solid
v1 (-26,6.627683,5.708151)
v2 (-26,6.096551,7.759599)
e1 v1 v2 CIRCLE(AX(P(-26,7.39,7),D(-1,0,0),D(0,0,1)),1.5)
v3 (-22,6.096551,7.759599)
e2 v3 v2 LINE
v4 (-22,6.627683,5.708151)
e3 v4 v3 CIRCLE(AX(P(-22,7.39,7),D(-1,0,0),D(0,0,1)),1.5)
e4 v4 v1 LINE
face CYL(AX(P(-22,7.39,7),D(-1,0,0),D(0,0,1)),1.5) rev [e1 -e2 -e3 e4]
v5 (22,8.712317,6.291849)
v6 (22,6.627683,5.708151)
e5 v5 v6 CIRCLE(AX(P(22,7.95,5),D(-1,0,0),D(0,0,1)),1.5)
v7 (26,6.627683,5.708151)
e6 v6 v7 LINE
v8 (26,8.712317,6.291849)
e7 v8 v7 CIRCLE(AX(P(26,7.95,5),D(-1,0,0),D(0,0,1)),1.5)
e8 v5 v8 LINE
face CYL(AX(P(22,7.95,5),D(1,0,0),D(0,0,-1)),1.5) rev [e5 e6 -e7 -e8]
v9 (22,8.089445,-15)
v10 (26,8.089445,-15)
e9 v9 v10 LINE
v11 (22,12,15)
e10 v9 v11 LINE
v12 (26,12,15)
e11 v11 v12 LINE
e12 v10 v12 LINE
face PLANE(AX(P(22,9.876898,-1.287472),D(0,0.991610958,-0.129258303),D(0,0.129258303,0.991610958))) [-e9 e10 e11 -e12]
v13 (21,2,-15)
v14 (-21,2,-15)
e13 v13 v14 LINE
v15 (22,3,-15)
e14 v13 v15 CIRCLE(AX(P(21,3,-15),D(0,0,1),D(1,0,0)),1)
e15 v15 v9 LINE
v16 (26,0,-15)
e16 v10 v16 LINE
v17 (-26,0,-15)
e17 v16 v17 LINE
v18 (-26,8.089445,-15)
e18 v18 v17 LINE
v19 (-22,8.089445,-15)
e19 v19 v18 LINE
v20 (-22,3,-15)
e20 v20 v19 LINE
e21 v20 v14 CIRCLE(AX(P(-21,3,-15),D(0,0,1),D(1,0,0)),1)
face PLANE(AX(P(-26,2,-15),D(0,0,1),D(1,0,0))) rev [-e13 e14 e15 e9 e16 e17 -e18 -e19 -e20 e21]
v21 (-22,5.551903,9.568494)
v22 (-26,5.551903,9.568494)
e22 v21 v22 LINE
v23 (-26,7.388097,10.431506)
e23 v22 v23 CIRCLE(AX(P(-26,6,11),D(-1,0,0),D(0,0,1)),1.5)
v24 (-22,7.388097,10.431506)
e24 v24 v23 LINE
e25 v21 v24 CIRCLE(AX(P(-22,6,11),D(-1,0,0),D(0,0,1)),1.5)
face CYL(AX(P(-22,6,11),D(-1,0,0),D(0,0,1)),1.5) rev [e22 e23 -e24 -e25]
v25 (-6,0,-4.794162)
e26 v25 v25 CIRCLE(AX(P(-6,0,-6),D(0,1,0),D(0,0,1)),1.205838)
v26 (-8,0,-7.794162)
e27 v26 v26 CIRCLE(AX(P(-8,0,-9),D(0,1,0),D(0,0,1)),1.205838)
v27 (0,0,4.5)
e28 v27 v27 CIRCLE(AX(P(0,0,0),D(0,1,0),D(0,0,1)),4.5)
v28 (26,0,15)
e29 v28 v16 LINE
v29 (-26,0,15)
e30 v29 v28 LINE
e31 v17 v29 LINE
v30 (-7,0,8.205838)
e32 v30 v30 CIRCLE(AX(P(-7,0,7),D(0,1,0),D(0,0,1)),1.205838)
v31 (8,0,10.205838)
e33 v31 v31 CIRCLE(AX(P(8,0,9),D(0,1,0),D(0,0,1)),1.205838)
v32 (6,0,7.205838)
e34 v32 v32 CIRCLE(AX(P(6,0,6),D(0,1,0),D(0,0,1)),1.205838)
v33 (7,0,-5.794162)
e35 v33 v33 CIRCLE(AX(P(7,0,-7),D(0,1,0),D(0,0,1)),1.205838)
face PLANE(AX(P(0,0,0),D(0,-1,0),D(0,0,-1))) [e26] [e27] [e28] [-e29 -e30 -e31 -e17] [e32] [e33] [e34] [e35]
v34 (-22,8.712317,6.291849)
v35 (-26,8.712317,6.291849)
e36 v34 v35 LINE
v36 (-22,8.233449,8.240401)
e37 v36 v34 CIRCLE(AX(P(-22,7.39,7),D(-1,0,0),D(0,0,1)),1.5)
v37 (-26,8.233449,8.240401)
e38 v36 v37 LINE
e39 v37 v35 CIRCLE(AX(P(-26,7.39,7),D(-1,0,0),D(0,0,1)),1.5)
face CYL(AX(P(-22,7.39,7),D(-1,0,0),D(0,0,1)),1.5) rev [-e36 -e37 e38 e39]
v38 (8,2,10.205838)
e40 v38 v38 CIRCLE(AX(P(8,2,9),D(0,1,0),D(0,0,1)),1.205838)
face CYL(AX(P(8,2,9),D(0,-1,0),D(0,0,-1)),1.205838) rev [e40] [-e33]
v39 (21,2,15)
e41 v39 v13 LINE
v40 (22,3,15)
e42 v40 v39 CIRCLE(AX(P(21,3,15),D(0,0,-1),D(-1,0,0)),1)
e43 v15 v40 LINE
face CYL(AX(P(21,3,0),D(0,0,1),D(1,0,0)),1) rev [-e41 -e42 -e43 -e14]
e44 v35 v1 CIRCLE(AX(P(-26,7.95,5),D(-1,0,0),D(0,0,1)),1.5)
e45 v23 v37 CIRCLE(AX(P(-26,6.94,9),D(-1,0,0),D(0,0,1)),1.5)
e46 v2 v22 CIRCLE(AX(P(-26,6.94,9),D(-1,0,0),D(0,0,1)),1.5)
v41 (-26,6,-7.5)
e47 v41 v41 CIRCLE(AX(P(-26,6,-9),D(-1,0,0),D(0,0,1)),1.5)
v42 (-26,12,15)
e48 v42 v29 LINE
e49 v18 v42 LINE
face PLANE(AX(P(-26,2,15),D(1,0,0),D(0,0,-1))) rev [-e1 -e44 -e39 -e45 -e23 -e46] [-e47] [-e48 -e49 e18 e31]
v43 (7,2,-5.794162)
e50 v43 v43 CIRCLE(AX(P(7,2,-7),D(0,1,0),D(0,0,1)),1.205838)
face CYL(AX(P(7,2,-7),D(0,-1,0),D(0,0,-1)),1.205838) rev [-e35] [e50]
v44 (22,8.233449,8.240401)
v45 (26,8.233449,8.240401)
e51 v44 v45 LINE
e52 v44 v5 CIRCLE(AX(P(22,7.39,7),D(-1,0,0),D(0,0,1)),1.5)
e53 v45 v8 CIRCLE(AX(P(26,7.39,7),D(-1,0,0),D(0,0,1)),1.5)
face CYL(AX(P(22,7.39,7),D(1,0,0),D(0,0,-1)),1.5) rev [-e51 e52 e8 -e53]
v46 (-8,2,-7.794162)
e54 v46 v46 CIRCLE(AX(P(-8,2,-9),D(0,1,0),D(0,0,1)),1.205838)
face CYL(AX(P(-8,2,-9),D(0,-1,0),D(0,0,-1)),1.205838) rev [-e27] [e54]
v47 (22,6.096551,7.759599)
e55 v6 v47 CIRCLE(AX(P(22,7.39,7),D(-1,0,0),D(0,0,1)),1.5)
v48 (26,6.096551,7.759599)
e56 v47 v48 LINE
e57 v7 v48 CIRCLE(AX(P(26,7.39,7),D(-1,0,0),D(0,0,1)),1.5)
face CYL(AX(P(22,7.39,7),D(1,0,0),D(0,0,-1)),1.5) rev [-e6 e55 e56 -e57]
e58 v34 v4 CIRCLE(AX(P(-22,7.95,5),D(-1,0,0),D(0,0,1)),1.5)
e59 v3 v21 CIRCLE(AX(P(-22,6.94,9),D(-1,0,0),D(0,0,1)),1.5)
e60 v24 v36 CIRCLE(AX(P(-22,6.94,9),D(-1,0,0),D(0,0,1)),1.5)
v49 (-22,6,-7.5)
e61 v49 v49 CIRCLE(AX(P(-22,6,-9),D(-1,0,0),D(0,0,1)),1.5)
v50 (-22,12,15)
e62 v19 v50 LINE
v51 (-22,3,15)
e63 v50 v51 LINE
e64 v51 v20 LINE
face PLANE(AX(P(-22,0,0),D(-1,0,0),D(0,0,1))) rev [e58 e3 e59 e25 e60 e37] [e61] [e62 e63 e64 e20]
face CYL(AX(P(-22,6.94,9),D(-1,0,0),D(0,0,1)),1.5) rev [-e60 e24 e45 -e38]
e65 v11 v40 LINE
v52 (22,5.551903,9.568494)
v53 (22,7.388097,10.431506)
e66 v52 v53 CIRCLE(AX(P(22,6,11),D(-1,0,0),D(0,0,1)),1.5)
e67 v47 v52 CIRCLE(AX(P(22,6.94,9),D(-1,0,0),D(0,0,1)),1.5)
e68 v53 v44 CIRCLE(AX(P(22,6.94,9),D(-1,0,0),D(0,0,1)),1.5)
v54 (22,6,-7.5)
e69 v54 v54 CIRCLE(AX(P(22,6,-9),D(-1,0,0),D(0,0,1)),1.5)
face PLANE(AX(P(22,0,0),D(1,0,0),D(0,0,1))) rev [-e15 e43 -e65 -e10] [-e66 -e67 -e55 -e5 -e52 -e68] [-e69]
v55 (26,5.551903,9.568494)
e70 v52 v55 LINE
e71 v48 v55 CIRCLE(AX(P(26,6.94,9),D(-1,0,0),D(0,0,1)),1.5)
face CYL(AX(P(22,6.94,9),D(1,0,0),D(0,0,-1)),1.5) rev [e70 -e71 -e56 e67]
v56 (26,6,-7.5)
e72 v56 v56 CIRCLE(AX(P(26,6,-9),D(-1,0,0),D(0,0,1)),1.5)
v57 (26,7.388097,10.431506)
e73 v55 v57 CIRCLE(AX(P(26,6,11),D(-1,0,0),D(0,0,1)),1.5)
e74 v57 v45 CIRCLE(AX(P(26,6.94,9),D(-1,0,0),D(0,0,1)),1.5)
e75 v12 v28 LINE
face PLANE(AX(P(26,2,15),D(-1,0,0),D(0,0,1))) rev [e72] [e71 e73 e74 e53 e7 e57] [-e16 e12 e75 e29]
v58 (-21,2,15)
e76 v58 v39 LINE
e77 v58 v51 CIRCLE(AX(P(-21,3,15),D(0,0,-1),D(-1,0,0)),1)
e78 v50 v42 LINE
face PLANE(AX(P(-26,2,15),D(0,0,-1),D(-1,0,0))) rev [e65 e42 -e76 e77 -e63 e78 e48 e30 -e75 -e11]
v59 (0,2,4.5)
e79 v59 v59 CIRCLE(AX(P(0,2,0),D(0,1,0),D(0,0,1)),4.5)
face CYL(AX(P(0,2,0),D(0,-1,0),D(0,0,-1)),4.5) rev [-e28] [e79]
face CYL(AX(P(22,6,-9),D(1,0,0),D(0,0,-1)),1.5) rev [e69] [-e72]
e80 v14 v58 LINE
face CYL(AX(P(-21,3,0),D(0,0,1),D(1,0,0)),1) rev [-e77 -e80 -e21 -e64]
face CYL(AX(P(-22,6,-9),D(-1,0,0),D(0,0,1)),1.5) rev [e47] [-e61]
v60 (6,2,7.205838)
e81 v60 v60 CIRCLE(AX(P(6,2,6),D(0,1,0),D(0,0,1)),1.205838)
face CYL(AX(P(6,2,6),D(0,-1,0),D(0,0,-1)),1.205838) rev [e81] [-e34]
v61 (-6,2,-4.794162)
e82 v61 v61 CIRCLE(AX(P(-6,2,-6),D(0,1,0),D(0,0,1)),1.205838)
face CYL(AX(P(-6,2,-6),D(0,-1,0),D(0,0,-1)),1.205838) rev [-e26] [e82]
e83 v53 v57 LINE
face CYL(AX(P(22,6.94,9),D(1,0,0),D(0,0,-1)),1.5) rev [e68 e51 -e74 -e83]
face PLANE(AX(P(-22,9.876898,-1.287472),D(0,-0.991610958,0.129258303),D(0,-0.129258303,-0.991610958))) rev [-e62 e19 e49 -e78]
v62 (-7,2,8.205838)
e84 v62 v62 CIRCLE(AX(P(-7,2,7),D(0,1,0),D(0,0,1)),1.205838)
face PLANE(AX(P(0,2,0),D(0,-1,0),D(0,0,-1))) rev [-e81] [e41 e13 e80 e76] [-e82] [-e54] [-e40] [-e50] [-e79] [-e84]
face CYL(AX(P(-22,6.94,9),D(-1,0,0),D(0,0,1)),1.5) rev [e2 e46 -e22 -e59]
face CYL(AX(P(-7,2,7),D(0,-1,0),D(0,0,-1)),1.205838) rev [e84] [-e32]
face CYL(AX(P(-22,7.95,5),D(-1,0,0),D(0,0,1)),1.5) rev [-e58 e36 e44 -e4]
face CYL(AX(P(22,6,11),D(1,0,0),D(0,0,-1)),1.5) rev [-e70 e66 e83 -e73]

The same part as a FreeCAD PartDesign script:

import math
import FreeCAD as App
import Part
import Sketcher

V = App.Vector


def edges_at(feature, points):
    """Names of the edges that pass closest to the given points."""
    edges = feature.Shape.Edges
    near = lambda p: min(range(len(edges)), key=lambda i: edges[i].distToShape(Part.Vertex(*p))[0])
    return sorted({f"Edge{near(p) + 1}" for p in points})

doc = App.newDocument("Part")
body = doc.addObject("PartDesign::Body", "Body")

# Sketch on XZ plane
sketch1 = body.newObject("Sketcher::SketchObject", "Sketch")
sketch1.AttachmentSupport = (doc.getObject("XZ_Plane"), [""])
sketch1.MapMode = "FlatFace"
sketch1.addGeometry([
    Part.LineSegment(V(-26, -15, 0), V(-26, 15, 0)),  # 0
    Part.LineSegment(V(-26, 15, 0), V(26, 15, 0)),  # 1
    Part.LineSegment(V(26, 15, 0), V(26, -15, 0)),  # 2
    Part.LineSegment(V(26, -15, 0), V(-26, -15, 0)),  # 3
    Part.Circle(V(-7, 7, 0), V(0, 0, 1), 1.2),  # 4
    Part.Circle(V(8, 9, 0), V(0, 0, 1), 1.2),  # 5
    Part.Circle(V(6, 6, 0), V(0, 0, 1), 1.2),  # 6
    Part.Circle(V(-6, -6, 0), V(0, 0, 1), 1.2),  # 7
    Part.Circle(V(-8, -9, 0), V(0, 0, 1), 1.2),  # 8
    Part.Circle(V(0, 0, 0), V(0, 0, 1), 4.5),  # 9
    Part.Circle(V(7, -7, 0), V(0, 0, 1), 1.2),  # 10
], False)
sketch1.addConstraint([
    Sketcher.Constraint("Coincident", 0, 2, 1, 1),
    Sketcher.Constraint("Coincident", 1, 2, 2, 1),
    Sketcher.Constraint("Coincident", 2, 2, 3, 1),
    Sketcher.Constraint("Coincident", 3, 2, 0, 1),
    Sketcher.Constraint("Vertical", 0),
    Sketcher.Constraint("Horizontal", 1),
    Sketcher.Constraint("Vertical", 2),
    Sketcher.Constraint("Horizontal", 3),
    Sketcher.Constraint("Coincident", 9, 3, -1, 1),
    Sketcher.Constraint("Equal", 4, 5),
    Sketcher.Constraint("Equal", 5, 6),
    Sketcher.Constraint("Equal", 6, 7),
    Sketcher.Constraint("Equal", 7, 8),
    Sketcher.Constraint("Equal", 8, 10),
    Sketcher.Constraint("Symmetric", 6, 3, 7, 3, -1, 1),
    Sketcher.Constraint("Symmetric", 5, 3, 8, 3, -1, 1),
    Sketcher.Constraint("Symmetric", 4, 3, 10, 3, -1, 1),
    Sketcher.Constraint("Symmetric", 0, 2, 2, 2, -1, 1),
    Sketcher.Constraint("Diameter", 9, 9.0),
    Sketcher.Constraint("DistanceX", 1, 1, 1, 2, 52.0),
    Sketcher.Constraint("DistanceY", 0, 1, 0, 2, 30.0),
    Sketcher.Constraint("DistanceX", 4, 3, -1, 1, 7.0),
    Sketcher.Constraint("DistanceY", -1, 1, 4, 3, 7.0),
    Sketcher.Constraint("DistanceX", -1, 1, 5, 3, 8.0),
    Sketcher.Constraint("DistanceY", -1, 1, 5, 3, 9.0),
    Sketcher.Constraint("DistanceX", -1, 1, 6, 3, 6.0),
    Sketcher.Constraint("DistanceY", -1, 1, 6, 3, 6.0),
    Sketcher.Constraint("Diameter", 4, 2.411675),
])
pad1 = body.newObject("PartDesign::Pad", "Pad")
pad1.Profile = sketch1
pad1.Length = 2
pad1.Reversed = True

# Sketch on YZ plane
sketch2 = body.newObject("Sketcher::SketchObject", "Sketch001")
sketch2.AttachmentSupport = (doc.getObject("YZ_Plane"), [""])
sketch2.MapMode = "FlatFace"
sketch2.AttachmentOffset = App.Placement(V(0, 0, -26), App.Rotation())
sketch2.addGeometry([
    Part.LineSegment(V(2, 15, 0), V(12, 15, 0)),  # 0
    Part.LineSegment(V(12, 15, 0), V(8.1, -15, 0)),  # 1
    Part.LineSegment(V(8.1, -15, 0), V(2, -15, 0)),  # 2
    Part.LineSegment(V(2, -15, 0), V(2, 15, 0)),  # 3
    Part.Circle(V(6, -9, 0), V(0, 0, 1), 1.5),  # 4
    Part.ArcOfCircle(Part.Circle(V(7.4, 7, 0), V(0, 0, 1), 1.5), math.radians(-28), math.radians(56)),  # 5
    Part.ArcOfCircle(Part.Circle(V(6.9, 9, 0), V(0, 0, 1), 1.5), math.radians(-30), math.radians(73)),  # 6
    Part.ArcOfCircle(Part.Circle(V(6, 11, 0), V(0, 0, 1), 1.5), math.radians(-22), math.radians(90)),  # 7
    Part.ArcOfCircle(Part.Circle(V(6, 11, 0), V(0, 0, 1), 1.5), math.radians(90), math.radians(253)),  # 8
    Part.ArcOfCircle(Part.Circle(V(6.9, 9, 0), V(0, 0, 1), 1.5), math.radians(158), math.radians(236)),  # 9
    Part.ArcOfCircle(Part.Circle(V(7.4, 7, 0), V(0, 0, 1), 1.5), math.radians(150), math.radians(239)),  # 10
    Part.ArcOfCircle(Part.Circle(V(8, 5, 0), V(0, 0, 1), 1.5), math.radians(152), math.radians(419)),  # 11
], False)
sketch2.addConstraint([
    Sketcher.Constraint("Coincident", 0, 2, 1, 1),
    Sketcher.Constraint("Coincident", 1, 2, 2, 1),
    Sketcher.Constraint("Coincident", 2, 2, 3, 1),
    Sketcher.Constraint("Coincident", 3, 2, 0, 1),
    Sketcher.Constraint("Coincident", 5, 2, 6, 1),
    Sketcher.Constraint("Coincident", 6, 2, 7, 1),
    Sketcher.Constraint("Tangent", 7, 2, 8, 1),
    Sketcher.Constraint("Coincident", 8, 2, 9, 1),
    Sketcher.Constraint("Coincident", 9, 2, 10, 1),
    Sketcher.Constraint("Coincident", 10, 2, 11, 1),
    Sketcher.Constraint("Coincident", 11, 2, 5, 1),
    Sketcher.Constraint("Horizontal", 0),
    Sketcher.Constraint("Horizontal", 2),
    Sketcher.Constraint("Vertical", 3),
    Sketcher.Constraint("Coincident", 9, 3, 6, 3),
    Sketcher.Constraint("Coincident", 10, 3, 5, 3),
    Sketcher.Constraint("Equal", 4, 5),
    Sketcher.Constraint("Equal", 5, 6),
    Sketcher.Constraint("Equal", 6, 7),
    Sketcher.Constraint("Equal", 7, 8),
    Sketcher.Constraint("Equal", 8, 9),
    Sketcher.Constraint("Equal", 9, 10),
    Sketcher.Constraint("Equal", 10, 11),
    Sketcher.Constraint("Vertical", 4, 3, 7, 3),
    Sketcher.Constraint("Vertical", 8, 3, 7, 2),
    Sketcher.Constraint("Diameter", 4, 3.0),
    Sketcher.Constraint("DistanceX", 0, 1, 0, 2, 10.0),
    Sketcher.Constraint("DistanceY", 3, 1, 3, 2, 30.0),
    Sketcher.Constraint("DistanceX", -1, 1, 4, 3, 6.0),
    Sketcher.Constraint("DistanceY", 4, 3, -1, 1, 9.0),
    Sketcher.Constraint("DistanceY", -1, 1, 5, 3, 7.0),
    Sketcher.Constraint("DistanceY", -1, 1, 6, 3, 9.0),
    Sketcher.Constraint("DistanceY", -1, 1, 7, 3, 11.0),
    Sketcher.Constraint("DistanceY", -1, 1, 11, 3, 5.0),
    Sketcher.Constraint("DistanceX", -1, 1, 0, 2, 12.0),
    Sketcher.Constraint("DistanceY", -1, 1, 0, 2, 15.0),
    Sketcher.Constraint("DistanceX", -1, 1, 5, 3, 7.39),
    Sketcher.Constraint("DistanceX", -1, 1, 6, 3, 6.94),
    Sketcher.Constraint("DistanceX", -1, 1, 11, 3, 7.95),
    Sketcher.Constraint("Distance", 1, 30.2538),
])
pad2 = body.newObject("PartDesign::Pad", "Pad001")
pad2.Profile = sketch2
pad2.Length = 4
doc.recompute()

mirrored = body.newObject("PartDesign::Mirrored", "Mirrored")
mirrored.Originals = [pad2]
mirrored.MirrorPlane = (doc.getObject("YZ_Plane"), [""])
body.Tip = mirrored
doc.recompute()

fillet = body.newObject("PartDesign::Fillet", "Fillet")
fillet.Base = (mirrored, edges_at(mirrored, [(22, 2, 0), (-22, 2, 0)]))
fillet.Radius = 1

doc.recompute()
